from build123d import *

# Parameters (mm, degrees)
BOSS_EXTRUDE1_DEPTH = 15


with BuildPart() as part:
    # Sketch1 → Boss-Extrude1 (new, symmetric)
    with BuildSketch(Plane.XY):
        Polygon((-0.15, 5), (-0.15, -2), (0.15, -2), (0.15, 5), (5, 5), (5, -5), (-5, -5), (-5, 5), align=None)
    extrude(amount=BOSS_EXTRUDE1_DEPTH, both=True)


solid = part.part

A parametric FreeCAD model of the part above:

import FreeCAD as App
import Part
import Sketcher
from FreeCAD import Vector

doc = App.newDocument("Part")
params = doc.addObject("Spreadsheet::Sheet", "Params")
for row, (alias, value) in enumerate([
    ("sketch1_width", "10 mm"),
    ("sketch1_height", "7 mm"),
    ("sketch1_width2", "0.3 mm"),
    ("pad1_length", "30 mm"),
], start=1):
    params.set(f"A{row}", alias)
    params.set(f"B{row}", "=" + value)
    params.setAlias(f"B{row}", alias)

body = doc.addObject("PartDesign::Body", "Body")

sketch1 = body.newObject("Sketcher::SketchObject", "Sketch")
sketch1.AttachmentSupport = (doc.getObject("XY_Plane"), [""])
sketch1.MapMode = "FlatFace"
sketch1.addGeometry([
    Part.LineSegment(Vector(-0.15, -2, 0), Vector(-0.15, 5, 0)),
    Part.LineSegment(Vector(-0.15, 5, 0), Vector(-5, 5, 0)),
    Part.LineSegment(Vector(-5, 5, 0), Vector(-5, -5, 0)),
    Part.LineSegment(Vector(-5, -5, 0), Vector(5, -5, 0)),
    Part.LineSegment(Vector(5, -5, 0), Vector(5, 5, 0)),
    Part.LineSegment(Vector(5, 5, 0), Vector(0.15, 5, 0)),
    Part.LineSegment(Vector(0.15, 5, 0), Vector(0.15, -2, 0)),
    Part.LineSegment(Vector(0.15, -2, 0), Vector(-0.15, -2, 0)),
], False)
sketch1.addConstraint([
    Sketcher.Constraint("Coincident", 0, 2, 1, 1),
    Sketcher.Constraint("Coincident", 1, 2, 2, 1),
    Sketcher.Constraint("Coincident", 2, 2, 3, 1),
    Sketcher.Constraint("Coincident", 3, 2, 4, 1),
    Sketcher.Constraint("Coincident", 4, 2, 5, 1),
    Sketcher.Constraint("Coincident", 5, 2, 6, 1),
    Sketcher.Constraint("Coincident", 6, 2, 7, 1),
    Sketcher.Constraint("Coincident", 7, 2, 0, 1),
    Sketcher.Constraint("Vertical", 0),
    Sketcher.Constraint("Horizontal", 1),
    Sketcher.Constraint("Vertical", 2),
    Sketcher.Constraint("Horizontal", 3),
    Sketcher.Constraint("Vertical", 4),
    Sketcher.Constraint("Horizontal", 5),
    Sketcher.Constraint("Vertical", 6),
    Sketcher.Constraint("Horizontal", 7),
    Sketcher.Constraint("Symmetric", 1, 2, 3, 2, -1, 1),
    Sketcher.Constraint("Symmetric", 0, 2, 5, 2, -2),
    Sketcher.Constraint("Equal", 3, 2),
    Sketcher.Constraint("DistanceX", 3, 1, 3, 2, 10.0),
    Sketcher.Constraint("DistanceY", 0, 1, 0, 2, 7.0),
    Sketcher.Constraint("DistanceX", 7, 2, 7, 1, 0.3),
])
sketch1.setExpression("Constraints[19]", "Params.sketch1_width")
sketch1.setExpression("Constraints[20]", "Params.sketch1_height")
sketch1.setExpression("Constraints[21]", "Params.sketch1_width2")
pad1 = body.newObject("PartDesign::Pad", "Pad")
pad1.Profile = sketch1
pad1.setExpression("Length", "Params.pad1_length")
pad1.Midplane = True

doc.recompute()
